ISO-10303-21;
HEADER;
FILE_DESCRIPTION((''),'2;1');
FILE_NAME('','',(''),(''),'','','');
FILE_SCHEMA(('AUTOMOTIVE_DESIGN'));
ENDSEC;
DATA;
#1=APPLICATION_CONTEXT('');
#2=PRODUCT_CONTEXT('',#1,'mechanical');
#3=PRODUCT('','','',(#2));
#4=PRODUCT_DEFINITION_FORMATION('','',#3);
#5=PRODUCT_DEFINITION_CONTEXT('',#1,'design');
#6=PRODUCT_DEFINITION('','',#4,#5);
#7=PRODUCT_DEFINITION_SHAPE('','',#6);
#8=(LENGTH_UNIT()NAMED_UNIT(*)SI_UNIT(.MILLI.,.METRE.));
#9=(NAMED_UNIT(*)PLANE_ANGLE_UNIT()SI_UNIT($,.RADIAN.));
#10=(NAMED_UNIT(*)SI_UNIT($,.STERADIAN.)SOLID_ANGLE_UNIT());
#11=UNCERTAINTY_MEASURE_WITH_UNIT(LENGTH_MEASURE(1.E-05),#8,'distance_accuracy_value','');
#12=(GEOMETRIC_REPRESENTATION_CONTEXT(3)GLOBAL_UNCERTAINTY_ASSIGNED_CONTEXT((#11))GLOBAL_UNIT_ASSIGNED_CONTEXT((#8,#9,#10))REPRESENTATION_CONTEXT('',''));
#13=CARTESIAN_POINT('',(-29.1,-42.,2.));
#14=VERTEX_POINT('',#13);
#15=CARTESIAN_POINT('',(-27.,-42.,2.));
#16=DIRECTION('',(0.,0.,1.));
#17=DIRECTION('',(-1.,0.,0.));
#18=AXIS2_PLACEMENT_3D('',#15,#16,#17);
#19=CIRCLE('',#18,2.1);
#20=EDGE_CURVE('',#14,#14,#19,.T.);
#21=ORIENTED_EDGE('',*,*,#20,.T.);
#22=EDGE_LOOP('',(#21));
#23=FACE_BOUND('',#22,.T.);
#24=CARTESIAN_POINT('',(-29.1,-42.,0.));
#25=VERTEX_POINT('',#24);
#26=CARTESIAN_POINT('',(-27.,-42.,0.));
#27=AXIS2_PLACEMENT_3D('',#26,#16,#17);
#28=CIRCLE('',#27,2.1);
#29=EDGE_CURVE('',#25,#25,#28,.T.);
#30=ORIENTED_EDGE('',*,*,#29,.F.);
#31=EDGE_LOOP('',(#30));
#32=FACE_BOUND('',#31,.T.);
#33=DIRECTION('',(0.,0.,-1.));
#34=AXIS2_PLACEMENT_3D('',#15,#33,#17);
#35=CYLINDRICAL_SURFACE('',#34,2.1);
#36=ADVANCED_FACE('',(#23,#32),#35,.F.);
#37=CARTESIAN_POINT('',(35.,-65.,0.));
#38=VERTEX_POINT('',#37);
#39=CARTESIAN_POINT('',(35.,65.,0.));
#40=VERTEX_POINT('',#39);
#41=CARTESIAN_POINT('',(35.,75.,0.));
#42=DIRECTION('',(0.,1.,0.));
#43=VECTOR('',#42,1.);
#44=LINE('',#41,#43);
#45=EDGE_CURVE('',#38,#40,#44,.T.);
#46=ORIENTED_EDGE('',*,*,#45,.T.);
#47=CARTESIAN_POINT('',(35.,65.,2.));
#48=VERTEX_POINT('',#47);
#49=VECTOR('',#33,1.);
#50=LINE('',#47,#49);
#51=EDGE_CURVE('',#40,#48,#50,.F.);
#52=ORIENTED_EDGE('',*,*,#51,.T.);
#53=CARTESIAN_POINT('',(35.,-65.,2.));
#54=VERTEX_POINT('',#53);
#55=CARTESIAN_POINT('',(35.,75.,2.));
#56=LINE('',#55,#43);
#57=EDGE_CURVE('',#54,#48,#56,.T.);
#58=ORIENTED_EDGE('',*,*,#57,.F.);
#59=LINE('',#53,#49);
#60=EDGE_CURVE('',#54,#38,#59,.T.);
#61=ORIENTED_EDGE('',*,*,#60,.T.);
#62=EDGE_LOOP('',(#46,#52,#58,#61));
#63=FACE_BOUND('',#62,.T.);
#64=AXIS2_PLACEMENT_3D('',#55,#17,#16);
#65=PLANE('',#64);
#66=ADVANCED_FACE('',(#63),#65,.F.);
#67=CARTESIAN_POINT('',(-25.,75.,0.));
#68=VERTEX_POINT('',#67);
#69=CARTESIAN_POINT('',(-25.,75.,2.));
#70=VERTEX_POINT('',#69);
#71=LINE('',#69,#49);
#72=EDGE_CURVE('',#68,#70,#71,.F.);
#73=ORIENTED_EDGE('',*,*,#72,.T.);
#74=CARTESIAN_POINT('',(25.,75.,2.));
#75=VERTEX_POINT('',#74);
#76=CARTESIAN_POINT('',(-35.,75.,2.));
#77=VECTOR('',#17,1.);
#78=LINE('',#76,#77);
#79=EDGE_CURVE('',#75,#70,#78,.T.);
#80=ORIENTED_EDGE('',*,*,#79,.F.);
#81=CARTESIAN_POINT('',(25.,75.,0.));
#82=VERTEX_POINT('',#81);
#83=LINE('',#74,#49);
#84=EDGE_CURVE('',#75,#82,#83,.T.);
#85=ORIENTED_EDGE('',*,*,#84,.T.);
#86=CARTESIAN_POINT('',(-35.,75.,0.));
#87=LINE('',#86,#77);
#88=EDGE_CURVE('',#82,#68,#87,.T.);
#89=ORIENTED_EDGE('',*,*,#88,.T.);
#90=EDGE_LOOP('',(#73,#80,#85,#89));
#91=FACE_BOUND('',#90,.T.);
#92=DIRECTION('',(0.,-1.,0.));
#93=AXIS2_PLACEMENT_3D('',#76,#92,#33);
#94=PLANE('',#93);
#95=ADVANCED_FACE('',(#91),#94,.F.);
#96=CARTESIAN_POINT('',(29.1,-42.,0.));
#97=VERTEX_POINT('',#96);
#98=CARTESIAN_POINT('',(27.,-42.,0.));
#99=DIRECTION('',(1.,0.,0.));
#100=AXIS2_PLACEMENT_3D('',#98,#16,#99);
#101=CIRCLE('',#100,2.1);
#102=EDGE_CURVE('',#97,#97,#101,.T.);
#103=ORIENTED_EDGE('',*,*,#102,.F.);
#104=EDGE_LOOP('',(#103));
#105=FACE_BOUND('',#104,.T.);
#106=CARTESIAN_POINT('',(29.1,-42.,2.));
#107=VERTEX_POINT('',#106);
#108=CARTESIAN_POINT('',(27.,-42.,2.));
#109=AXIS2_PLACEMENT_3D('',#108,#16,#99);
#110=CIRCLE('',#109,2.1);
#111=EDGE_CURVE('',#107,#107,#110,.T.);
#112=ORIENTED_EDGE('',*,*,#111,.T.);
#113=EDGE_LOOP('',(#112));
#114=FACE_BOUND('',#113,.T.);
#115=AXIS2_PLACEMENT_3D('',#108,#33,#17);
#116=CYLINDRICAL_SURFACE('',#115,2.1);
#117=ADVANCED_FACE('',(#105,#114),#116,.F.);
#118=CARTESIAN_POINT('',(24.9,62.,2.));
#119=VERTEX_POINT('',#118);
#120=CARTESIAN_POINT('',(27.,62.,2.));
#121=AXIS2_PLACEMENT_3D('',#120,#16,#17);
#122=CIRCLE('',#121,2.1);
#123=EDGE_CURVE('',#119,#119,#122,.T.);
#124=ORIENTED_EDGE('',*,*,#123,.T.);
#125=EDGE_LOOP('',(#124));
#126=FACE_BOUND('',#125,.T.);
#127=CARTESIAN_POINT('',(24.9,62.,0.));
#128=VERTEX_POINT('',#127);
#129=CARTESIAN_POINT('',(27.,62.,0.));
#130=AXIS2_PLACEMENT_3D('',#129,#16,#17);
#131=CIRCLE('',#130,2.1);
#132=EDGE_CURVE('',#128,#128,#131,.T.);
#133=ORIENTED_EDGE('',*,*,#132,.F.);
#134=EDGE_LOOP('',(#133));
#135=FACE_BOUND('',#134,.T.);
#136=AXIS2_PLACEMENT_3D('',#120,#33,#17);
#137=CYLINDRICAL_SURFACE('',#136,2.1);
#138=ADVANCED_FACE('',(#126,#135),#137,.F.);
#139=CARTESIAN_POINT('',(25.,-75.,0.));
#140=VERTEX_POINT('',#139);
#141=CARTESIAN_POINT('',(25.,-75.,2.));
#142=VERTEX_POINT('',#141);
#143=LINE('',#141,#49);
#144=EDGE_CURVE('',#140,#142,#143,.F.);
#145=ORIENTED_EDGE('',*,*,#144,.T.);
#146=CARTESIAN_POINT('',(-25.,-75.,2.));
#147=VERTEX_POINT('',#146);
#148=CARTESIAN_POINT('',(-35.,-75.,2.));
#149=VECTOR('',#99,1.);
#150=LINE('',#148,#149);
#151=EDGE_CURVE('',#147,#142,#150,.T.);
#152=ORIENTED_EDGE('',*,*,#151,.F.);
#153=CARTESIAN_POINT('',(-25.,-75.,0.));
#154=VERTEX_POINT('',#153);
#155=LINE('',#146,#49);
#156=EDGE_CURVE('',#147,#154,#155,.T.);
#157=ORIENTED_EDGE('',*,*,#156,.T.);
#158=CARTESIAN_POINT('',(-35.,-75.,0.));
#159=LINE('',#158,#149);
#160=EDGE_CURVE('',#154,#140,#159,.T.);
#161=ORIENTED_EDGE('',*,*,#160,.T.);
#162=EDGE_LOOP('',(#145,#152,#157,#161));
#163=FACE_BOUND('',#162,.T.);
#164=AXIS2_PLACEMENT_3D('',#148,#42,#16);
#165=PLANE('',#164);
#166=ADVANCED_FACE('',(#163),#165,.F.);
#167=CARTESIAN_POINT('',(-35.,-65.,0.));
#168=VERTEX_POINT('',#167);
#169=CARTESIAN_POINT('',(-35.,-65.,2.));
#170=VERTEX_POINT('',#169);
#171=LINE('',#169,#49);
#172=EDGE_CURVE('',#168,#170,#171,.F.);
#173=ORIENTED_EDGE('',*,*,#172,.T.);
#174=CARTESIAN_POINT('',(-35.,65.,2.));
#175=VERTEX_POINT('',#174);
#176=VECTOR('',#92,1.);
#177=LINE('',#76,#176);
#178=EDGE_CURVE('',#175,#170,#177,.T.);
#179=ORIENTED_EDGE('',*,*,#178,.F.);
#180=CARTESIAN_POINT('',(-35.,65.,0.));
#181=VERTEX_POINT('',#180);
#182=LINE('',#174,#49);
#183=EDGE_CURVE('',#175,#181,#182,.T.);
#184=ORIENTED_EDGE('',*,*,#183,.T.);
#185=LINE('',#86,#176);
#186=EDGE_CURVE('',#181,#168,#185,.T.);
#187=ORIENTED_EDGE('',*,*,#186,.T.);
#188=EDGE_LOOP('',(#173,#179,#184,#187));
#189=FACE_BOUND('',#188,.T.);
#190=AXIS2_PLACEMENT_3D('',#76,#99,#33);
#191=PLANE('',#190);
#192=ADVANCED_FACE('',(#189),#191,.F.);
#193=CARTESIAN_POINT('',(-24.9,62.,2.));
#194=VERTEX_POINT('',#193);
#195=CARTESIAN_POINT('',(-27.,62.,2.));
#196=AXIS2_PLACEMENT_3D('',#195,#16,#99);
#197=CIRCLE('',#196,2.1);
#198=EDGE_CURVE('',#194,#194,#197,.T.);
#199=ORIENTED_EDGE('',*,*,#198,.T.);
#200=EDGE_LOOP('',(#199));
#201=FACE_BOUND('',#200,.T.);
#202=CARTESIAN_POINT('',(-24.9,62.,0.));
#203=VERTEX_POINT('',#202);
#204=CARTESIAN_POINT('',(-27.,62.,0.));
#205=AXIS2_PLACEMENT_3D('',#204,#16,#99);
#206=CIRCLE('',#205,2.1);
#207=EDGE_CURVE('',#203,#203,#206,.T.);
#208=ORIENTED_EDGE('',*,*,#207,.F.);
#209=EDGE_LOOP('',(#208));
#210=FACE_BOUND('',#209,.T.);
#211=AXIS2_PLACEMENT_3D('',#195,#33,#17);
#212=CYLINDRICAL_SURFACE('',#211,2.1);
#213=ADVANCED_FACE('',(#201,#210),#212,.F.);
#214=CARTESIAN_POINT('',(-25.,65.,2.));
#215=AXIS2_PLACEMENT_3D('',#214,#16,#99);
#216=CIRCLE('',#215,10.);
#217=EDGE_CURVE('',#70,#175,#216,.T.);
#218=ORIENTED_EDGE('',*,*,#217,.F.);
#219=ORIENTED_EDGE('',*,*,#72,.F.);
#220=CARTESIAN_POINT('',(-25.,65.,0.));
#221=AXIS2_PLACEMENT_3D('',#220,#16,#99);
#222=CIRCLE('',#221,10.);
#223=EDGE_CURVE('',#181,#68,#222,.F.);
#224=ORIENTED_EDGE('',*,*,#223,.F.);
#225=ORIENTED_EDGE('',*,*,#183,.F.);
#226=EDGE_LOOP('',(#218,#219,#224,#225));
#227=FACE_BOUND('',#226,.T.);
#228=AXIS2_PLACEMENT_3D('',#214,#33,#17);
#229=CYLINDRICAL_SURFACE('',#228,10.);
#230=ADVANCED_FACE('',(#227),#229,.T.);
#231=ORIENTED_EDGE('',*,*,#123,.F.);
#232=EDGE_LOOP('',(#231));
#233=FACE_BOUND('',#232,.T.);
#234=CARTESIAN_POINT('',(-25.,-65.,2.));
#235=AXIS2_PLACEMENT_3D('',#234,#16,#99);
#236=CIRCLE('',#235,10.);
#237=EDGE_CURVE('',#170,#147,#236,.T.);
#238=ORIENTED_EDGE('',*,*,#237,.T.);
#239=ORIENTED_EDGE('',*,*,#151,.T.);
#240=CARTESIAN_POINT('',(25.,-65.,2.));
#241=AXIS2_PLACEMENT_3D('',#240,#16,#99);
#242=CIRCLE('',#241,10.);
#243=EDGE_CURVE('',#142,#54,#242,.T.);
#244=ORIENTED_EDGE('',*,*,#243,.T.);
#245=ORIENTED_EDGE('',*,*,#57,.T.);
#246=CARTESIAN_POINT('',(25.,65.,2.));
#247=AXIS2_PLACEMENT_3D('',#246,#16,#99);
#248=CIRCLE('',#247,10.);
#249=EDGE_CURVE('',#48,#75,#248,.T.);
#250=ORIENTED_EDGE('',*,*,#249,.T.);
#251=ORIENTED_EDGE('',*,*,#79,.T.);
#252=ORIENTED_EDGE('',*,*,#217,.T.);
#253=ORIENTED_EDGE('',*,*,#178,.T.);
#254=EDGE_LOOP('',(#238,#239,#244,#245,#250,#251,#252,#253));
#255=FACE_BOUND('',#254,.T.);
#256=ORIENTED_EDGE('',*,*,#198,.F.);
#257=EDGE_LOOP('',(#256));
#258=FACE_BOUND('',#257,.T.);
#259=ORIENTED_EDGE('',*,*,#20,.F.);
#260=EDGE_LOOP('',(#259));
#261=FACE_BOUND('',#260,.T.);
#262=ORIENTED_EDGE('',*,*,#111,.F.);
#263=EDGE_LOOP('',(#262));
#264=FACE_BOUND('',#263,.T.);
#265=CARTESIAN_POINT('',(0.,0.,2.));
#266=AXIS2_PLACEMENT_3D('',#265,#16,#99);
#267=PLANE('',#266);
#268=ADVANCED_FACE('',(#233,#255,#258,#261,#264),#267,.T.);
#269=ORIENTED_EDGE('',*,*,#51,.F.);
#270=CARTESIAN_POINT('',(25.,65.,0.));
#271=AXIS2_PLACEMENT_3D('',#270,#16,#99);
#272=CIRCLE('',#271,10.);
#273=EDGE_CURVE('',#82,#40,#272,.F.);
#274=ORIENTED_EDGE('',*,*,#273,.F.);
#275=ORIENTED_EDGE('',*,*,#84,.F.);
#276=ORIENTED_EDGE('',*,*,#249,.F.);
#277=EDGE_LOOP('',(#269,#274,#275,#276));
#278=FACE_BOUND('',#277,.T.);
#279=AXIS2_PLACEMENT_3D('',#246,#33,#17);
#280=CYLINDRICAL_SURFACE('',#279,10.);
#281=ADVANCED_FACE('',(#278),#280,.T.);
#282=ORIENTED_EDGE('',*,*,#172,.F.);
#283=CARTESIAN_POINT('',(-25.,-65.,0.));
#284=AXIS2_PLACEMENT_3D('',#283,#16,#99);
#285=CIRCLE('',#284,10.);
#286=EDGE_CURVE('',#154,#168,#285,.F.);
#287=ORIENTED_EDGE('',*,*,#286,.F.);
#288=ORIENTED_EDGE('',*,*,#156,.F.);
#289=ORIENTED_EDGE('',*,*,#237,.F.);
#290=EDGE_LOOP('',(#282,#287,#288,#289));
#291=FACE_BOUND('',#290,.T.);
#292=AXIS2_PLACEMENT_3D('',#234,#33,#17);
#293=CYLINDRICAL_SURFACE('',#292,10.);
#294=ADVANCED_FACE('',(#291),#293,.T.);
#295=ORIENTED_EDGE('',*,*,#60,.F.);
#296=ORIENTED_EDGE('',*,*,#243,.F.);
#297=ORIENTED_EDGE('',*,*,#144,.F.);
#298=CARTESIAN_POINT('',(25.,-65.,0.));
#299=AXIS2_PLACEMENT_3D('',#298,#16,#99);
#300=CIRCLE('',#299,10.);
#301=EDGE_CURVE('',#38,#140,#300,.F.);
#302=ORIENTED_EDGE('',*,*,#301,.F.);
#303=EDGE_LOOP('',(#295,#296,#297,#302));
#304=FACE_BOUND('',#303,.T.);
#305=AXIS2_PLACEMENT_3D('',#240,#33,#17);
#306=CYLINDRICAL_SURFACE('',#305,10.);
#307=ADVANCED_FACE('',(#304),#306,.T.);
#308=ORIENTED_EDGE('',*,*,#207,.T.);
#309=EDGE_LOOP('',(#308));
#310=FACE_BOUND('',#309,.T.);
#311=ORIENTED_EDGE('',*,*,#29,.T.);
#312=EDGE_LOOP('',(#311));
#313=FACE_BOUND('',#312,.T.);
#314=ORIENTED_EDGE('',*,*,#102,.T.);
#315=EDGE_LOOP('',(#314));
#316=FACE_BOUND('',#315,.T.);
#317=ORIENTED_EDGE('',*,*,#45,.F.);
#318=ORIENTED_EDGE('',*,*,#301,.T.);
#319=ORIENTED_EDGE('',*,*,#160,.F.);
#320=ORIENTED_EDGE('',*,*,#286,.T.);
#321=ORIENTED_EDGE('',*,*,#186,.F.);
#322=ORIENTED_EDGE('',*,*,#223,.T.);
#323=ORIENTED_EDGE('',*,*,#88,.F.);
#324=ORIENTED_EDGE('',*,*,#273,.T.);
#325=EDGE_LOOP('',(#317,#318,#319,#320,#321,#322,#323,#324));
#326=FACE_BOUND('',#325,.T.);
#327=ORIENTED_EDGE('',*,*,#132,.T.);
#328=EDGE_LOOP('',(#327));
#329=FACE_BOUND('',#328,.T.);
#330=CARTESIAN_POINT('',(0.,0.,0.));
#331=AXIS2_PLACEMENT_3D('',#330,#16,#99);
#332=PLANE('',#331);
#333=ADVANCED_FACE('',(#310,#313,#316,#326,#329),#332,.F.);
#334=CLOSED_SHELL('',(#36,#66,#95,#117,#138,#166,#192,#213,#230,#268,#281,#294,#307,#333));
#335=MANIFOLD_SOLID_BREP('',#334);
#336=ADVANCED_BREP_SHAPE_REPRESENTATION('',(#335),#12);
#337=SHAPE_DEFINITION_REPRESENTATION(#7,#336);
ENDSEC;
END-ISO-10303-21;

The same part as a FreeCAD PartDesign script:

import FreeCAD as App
import Part
import Sketcher


def edges_at(feature, points):
    """Names of the edges that pass closest to the given points."""
    edges = feature.Shape.Edges
    near = lambda p: min(range(len(edges)), key=lambda i: edges[i].distToShape(Part.Vertex(*p))[0])
    return sorted({f"Edge{near(p) + 1}" for p in points})

doc = App.newDocument("Part")
params = doc.addObject("Spreadsheet::Sheet", "Params")
for row, (alias, value) in enumerate([
    ("sketch1_diameter", "4.2 mm"),
    ("sketch1_width", "70 mm"),
    ("sketch1_height", "150 mm"),
    ("pad1_length", "2 mm"),
    ("fillet_radius", "10 mm"),
], start=1):
    params.set(f"A{row}", alias)
    params.set(f"B{row}", "=" + value)
    params.setAlias(f"B{row}", alias)

body = doc.addObject("PartDesign::Body", "Body")

# Sketch on XY plane
sketch1 = body.newObject("Sketcher::SketchObject", "Sketch")
sketch1.AttachmentSupport = (doc.getObject("XY_Plane"), [""])
sketch1.MapMode = "FlatFace"
sketch1.addGeometry(Part.LineSegment(App.Vector(-35, 75, 0), App.Vector(-35, -75, 0)), False)
sketch1.addGeometry(Part.LineSegment(App.Vector(-35, -75, 0), App.Vector(35, -75, 0)), False)
sketch1.addGeometry(Part.LineSegment(App.Vector(35, -75, 0), App.Vector(35, 75, 0)), False)
sketch1.addGeometry(Part.LineSegment(App.Vector(35, 75, 0), App.Vector(-35, 75, 0)), False)
sketch1.addGeometry(Part.Circle(App.Vector(-27, -42, 0), App.Vector(0, 0, 1), 2.1), False)
sketch1.addGeometry(Part.Circle(App.Vector(27, -42, 0), App.Vector(0, 0, 1), 2.1), False)
sketch1.addGeometry(Part.Circle(App.Vector(-27, 62, 0), App.Vector(0, 0, 1), 2.1), False)
sketch1.addGeometry(Part.Circle(App.Vector(27, 62, 0), App.Vector(0, 0, 1), 2.1), False)
sketch1.addConstraint(Sketcher.Constraint("Coincident", 0, 2, 1, 1))
sketch1.addConstraint(Sketcher.Constraint("Coincident", 1, 2, 2, 1))
sketch1.addConstraint(Sketcher.Constraint("Coincident", 2, 2, 3, 1))
sketch1.addConstraint(Sketcher.Constraint("Coincident", 3, 2, 0, 1))
sketch1.addConstraint(Sketcher.Constraint("Vertical", 0))
sketch1.addConstraint(Sketcher.Constraint("Horizontal", 1))
sketch1.addConstraint(Sketcher.Constraint("Vertical", 2))
sketch1.addConstraint(Sketcher.Constraint("Horizontal", 3))
sketch1.addConstraint(Sketcher.Constraint("Equal", 4, 5))
sketch1.addConstraint(Sketcher.Constraint("Equal", 5, 6))
sketch1.addConstraint(Sketcher.Constraint("Equal", 6, 7))
sketch1.addConstraint(Sketcher.Constraint("Symmetric", 0, 2, 2, 2, -1, 1))
sketch1.addConstraint(Sketcher.Constraint("Symmetric", 4, 3, 5, 3, -2))
sketch1.addConstraint(Sketcher.Constraint("Symmetric", 6, 3, 7, 3, -2))
sketch1.addConstraint(Sketcher.Constraint("Vertical", 4, 3, 6, 3))
sketch1.addConstraint(Sketcher.Constraint("Diameter", 4, 4.2))
sketch1.addConstraint(Sketcher.Constraint("DistanceX", 1, 1, 1, 2, 70.0))
sketch1.addConstraint(Sketcher.Constraint("DistanceY", 0, 2, 0, 1, 150.0))
sketch1.addConstraint(Sketcher.Constraint("DistanceX", 4, 3, -1, 1, 27.0))
sketch1.addConstraint(Sketcher.Constraint("DistanceY", 4, 3, -1, 1, 42.0))
sketch1.addConstraint(Sketcher.Constraint("DistanceY", -1, 1, 6, 3, 62.0))
sketch1.setExpression("Constraints[15]", "Params.sketch1_diameter")
sketch1.setExpression("Constraints[16]", "Params.sketch1_width")
sketch1.setExpression("Constraints[17]", "Params.sketch1_height")
pad1 = body.newObject("PartDesign::Pad", "Pad")
pad1.Profile = sketch1
pad1.setExpression("Length", "Params.pad1_length")
doc.recompute()

fillet = body.newObject("PartDesign::Fillet", "Fillet")
fillet.Base = (pad1, edges_at(pad1, [
    (35, -75, 1),
    (-35, -75, 1),
    (-35, 75, 1),
    (35, 75, 1),
]))
fillet.setExpression("Radius", "Params.fillet_radius")

doc.recompute()
